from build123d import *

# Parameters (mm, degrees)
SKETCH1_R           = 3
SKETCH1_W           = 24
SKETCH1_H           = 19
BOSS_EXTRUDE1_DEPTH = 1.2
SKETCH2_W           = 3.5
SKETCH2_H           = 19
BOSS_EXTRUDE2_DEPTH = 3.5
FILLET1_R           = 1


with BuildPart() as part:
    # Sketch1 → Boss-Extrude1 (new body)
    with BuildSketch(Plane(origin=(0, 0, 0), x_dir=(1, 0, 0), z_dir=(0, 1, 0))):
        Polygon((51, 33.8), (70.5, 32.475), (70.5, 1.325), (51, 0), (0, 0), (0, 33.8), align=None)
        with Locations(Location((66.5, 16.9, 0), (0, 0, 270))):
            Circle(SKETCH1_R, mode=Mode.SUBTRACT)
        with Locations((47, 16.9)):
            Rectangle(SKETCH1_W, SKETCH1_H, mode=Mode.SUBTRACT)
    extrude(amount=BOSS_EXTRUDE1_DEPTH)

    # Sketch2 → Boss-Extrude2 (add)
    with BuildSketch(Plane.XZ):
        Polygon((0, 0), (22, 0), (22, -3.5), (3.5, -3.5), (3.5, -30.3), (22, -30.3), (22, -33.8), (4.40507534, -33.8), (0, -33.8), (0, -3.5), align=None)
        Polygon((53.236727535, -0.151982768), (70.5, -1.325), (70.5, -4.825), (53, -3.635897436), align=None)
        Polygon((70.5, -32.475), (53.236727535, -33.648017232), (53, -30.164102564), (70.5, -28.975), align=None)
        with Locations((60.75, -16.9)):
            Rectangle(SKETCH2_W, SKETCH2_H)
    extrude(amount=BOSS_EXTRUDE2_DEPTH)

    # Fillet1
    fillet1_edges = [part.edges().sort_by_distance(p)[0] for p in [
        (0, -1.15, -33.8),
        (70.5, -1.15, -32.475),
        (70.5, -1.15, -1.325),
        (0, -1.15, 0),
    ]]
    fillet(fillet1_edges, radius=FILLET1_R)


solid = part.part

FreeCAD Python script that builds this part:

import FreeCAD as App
import Part
import Sketcher
from FreeCAD import Vector


def edges_at(feature, points):
    """Names of the edges that pass closest to the given points."""
    edges = feature.Shape.Edges
    near = lambda p: min(range(len(edges)), key=lambda i: edges[i].distToShape(Part.Vertex(*p))[0])
    return sorted({f"Edge{near(p) + 1}" for p in points})


def add_polygon(sketch, points):
    """Adds a closed chain of lines whose ends are joined by coincident constraints."""
    first, n = sketch.GeometryCount, len(points)
    for a, b in zip(points, points[1:] + points[:1]):
        sketch.addGeometry(Part.LineSegment(App.Vector(*a, 0), App.Vector(*b, 0)), False)
    for i in range(n):
        sketch.addConstraint(Sketcher.Constraint("Coincident", first + i, 2, first + (i + 1) % n, 1))

doc = App.newDocument("Part")
body = doc.addObject("PartDesign::Body", "Body")

# Sketch on XZ plane
sketch1 = body.newObject("Sketcher::SketchObject", "Sketch")
sketch1.AttachmentSupport = (doc.getObject("XZ_Plane"), [""])
sketch1.MapMode = "FlatFace"
add_polygon(sketch1, [(70.5, -32.475), (51, -33.8), (0, -33.8), (0, 0), (51, 0), (70.5, -1.325)])  # lines 0-5
sketch1.addGeometry(Part.Circle(Vector(66.5, -16.9, 0), Vector(0, 0, 1), 3), False)  # 6
add_polygon(sketch1, [(35, -7.4), (35, -26.4), (59, -26.4), (59, -7.4)])  # lines 7-10
sketch1.addConstraint(Sketcher.Constraint("Horizontal", 1))
sketch1.addConstraint(Sketcher.Constraint("Vertical", 2))
sketch1.addConstraint(Sketcher.Constraint("Horizontal", 3))
sketch1.addConstraint(Sketcher.Constraint("Vertical", 5))
sketch1.addConstraint(Sketcher.Constraint("Vertical", 7))
sketch1.addConstraint(Sketcher.Constraint("Horizontal", 8))
sketch1.addConstraint(Sketcher.Constraint("Vertical", 9))
sketch1.addConstraint(Sketcher.Constraint("Horizontal", 10))
sketch1.addConstraint(Sketcher.Constraint("Coincident", 2, 2, -1, 1))
sketch1.addConstraint(Sketcher.Constraint("Vertical", 0, 2, 3, 2))
sketch1.addConstraint(Sketcher.Constraint("Equal", 0, 4))
sketch1.addConstraint(Sketcher.Constraint("Diameter", 6, 6.0))
sketch1.addConstraint(Sketcher.Constraint("DistanceX", 1, 2, 1, 1, 51.0))
sketch1.addConstraint(Sketcher.Constraint("DistanceX", 8, 1, 8, 2, 24.0))
sketch1.addConstraint(Sketcher.Constraint("DistanceY", 7, 2, 7, 1, 19.0))
sketch1.addConstraint(Sketcher.Constraint("DistanceY", 2, 1, 2, 2, 33.8))
sketch1.addConstraint(Sketcher.Constraint("DistanceX", -1, 1, 7, 2, 35.0))
sketch1.addConstraint(Sketcher.Constraint("DistanceX", 6, 3, 4, 2, 4.0))
sketch1.addConstraint(Sketcher.Constraint("DistanceY", 5, 2, 5, 1, 31.15))
sketch1.addConstraint(Sketcher.Constraint("DistanceX", -1, 1, 6, 3, 66.5))
sketch1.addConstraint(Sketcher.Constraint("DistanceY", 6, 3, -1, 1, 16.9))
sketch1.addConstraint(Sketcher.Constraint("DistanceY", 7, 2, -1, 1, 26.4))
pad1 = body.newObject("PartDesign::Pad", "Pad")
pad1.Profile = sketch1
pad1.Length = 1.2
pad1.Reversed = True

# Sketch on XZ plane
sketch2 = body.newObject("Sketcher::SketchObject", "Sketch001")
sketch2.AttachmentSupport = (doc.getObject("XZ_Plane"), [""])
sketch2.MapMode = "FlatFace"
add_polygon(sketch2, [(22, 0), (0, 0), (0, -33.8), (22, -33.8), (22, -30.3), (3.5, -30.3), (3.5, -3.5), (22, -3.5)])  # lines 0-7
add_polygon(sketch2, [(70.5, -1.325), (53.236728, -0.151983), (53, -3.635897), (70.5, -4.825)])  # lines 8-11
add_polygon(sketch2, [(53.236728, -33.648017), (70.5, -32.475), (70.5, -28.975), (53, -30.164103)])  # lines 12-15
add_polygon(sketch2, [(59, -7.4), (59, -26.4), (62.5, -26.4), (62.5, -7.4)])  # lines 16-19
sketch2.addConstraint(Sketcher.Constraint("Horizontal", 0))
sketch2.addConstraint(Sketcher.Constraint("Vertical", 1))
sketch2.addConstraint(Sketcher.Constraint("Horizontal", 2))
sketch2.addConstraint(Sketcher.Constraint("Vertical", 3))
sketch2.addConstraint(Sketcher.Constraint("Horizontal", 4))
sketch2.addConstraint(Sketcher.Constraint("Vertical", 5))
sketch2.addConstraint(Sketcher.Constraint("Horizontal", 6))
sketch2.addConstraint(Sketcher.Constraint("Vertical", 7))
sketch2.addConstraint(Sketcher.Constraint("Vertical", 11))
sketch2.addConstraint(Sketcher.Constraint("Vertical", 13))
sketch2.addConstraint(Sketcher.Constraint("Vertical", 16))
sketch2.addConstraint(Sketcher.Constraint("Horizontal", 17))
sketch2.addConstraint(Sketcher.Constraint("Vertical", 18))
sketch2.addConstraint(Sketcher.Constraint("Horizontal", 19))
sketch2.addConstraint(Sketcher.Constraint("Coincident", 0, 2, -1, 1))
sketch2.addConstraint(Sketcher.Constraint("Perpendicular", 8, 9))
sketch2.addConstraint(Sketcher.Constraint("Perpendicular", 9, 10))
sketch2.addConstraint(Sketcher.Constraint("Parallel", 12, 14))
sketch2.addConstraint(Sketcher.Constraint("Perpendicular", 14, 15))
sketch2.addConstraint(Sketcher.Constraint("Vertical", 3, 2, 6, 2))
sketch2.addConstraint(Sketcher.Constraint("Vertical", 11, 2, 12, 2))
sketch2.addConstraint(Sketcher.Constraint("Vertical", 9, 2, 14, 2))
sketch2.addConstraint(Sketcher.Constraint("Vertical", 8, 2, 15, 2))
sketch2.addConstraint(Sketcher.Constraint("Equal", 19, 3))
sketch2.addConstraint(Sketcher.Constraint("Equal", 3, 7))
sketch2.addConstraint(Sketcher.Constraint("Equal", 7, 11))
sketch2.addConstraint(Sketcher.Constraint("Equal", 11, 13))
sketch2.addConstraint(Sketcher.Constraint("DistanceX", 0, 2, 0, 1, 22.0))
sketch2.addConstraint(Sketcher.Constraint("DistanceY", 16, 2, 16, 1, 19.0))
sketch2.addConstraint(Sketcher.Constraint("DistanceX", 4, 2, 4, 1, 18.5))
sketch2.addConstraint(Sketcher.Constraint("DistanceX", 17, 1, 17, 2, 3.5))
sketch2.addConstraint(Sketcher.Constraint("DistanceY", 1, 2, 1, 1, 33.8))
sketch2.addConstraint(Sketcher.Constraint("DistanceX", -1, 1, 9, 2, 53.0))
sketch2.addConstraint(Sketcher.Constraint("DistanceX", -1, 1, 16, 2, 59.0))
sketch2.addConstraint(Sketcher.Constraint("DistanceX", 17, 2, 13, 2, 8.0))
sketch2.addConstraint(Sketcher.Constraint("DistanceY", 16, 2, -1, 1, 26.4))
sketch2.addConstraint(Sketcher.Constraint("DistanceY", 12, 2, 10, 2, 27.65))
sketch2.addConstraint(Sketcher.Constraint("DistanceY", 10, 2, -1, 1, 4.825))
sketch2.addConstraint(Sketcher.Constraint("Distance", 8, 17.303079))
pad2 = body.newObject("PartDesign::Pad", "Pad001")
pad2.Profile = sketch2
pad2.Length = 3.5
doc.recompute()

fillet = body.newObject("PartDesign::Fillet", "Fillet")
fillet.Base = (pad2, edges_at(pad2, [
    (0, -1.15, -33.8),
    (70.5, -1.75, -32.475),
    (70.5, -1.75, -1.325),
    (0, -1.15, 0),
]))
fillet.Radius = 1

doc.recompute()
